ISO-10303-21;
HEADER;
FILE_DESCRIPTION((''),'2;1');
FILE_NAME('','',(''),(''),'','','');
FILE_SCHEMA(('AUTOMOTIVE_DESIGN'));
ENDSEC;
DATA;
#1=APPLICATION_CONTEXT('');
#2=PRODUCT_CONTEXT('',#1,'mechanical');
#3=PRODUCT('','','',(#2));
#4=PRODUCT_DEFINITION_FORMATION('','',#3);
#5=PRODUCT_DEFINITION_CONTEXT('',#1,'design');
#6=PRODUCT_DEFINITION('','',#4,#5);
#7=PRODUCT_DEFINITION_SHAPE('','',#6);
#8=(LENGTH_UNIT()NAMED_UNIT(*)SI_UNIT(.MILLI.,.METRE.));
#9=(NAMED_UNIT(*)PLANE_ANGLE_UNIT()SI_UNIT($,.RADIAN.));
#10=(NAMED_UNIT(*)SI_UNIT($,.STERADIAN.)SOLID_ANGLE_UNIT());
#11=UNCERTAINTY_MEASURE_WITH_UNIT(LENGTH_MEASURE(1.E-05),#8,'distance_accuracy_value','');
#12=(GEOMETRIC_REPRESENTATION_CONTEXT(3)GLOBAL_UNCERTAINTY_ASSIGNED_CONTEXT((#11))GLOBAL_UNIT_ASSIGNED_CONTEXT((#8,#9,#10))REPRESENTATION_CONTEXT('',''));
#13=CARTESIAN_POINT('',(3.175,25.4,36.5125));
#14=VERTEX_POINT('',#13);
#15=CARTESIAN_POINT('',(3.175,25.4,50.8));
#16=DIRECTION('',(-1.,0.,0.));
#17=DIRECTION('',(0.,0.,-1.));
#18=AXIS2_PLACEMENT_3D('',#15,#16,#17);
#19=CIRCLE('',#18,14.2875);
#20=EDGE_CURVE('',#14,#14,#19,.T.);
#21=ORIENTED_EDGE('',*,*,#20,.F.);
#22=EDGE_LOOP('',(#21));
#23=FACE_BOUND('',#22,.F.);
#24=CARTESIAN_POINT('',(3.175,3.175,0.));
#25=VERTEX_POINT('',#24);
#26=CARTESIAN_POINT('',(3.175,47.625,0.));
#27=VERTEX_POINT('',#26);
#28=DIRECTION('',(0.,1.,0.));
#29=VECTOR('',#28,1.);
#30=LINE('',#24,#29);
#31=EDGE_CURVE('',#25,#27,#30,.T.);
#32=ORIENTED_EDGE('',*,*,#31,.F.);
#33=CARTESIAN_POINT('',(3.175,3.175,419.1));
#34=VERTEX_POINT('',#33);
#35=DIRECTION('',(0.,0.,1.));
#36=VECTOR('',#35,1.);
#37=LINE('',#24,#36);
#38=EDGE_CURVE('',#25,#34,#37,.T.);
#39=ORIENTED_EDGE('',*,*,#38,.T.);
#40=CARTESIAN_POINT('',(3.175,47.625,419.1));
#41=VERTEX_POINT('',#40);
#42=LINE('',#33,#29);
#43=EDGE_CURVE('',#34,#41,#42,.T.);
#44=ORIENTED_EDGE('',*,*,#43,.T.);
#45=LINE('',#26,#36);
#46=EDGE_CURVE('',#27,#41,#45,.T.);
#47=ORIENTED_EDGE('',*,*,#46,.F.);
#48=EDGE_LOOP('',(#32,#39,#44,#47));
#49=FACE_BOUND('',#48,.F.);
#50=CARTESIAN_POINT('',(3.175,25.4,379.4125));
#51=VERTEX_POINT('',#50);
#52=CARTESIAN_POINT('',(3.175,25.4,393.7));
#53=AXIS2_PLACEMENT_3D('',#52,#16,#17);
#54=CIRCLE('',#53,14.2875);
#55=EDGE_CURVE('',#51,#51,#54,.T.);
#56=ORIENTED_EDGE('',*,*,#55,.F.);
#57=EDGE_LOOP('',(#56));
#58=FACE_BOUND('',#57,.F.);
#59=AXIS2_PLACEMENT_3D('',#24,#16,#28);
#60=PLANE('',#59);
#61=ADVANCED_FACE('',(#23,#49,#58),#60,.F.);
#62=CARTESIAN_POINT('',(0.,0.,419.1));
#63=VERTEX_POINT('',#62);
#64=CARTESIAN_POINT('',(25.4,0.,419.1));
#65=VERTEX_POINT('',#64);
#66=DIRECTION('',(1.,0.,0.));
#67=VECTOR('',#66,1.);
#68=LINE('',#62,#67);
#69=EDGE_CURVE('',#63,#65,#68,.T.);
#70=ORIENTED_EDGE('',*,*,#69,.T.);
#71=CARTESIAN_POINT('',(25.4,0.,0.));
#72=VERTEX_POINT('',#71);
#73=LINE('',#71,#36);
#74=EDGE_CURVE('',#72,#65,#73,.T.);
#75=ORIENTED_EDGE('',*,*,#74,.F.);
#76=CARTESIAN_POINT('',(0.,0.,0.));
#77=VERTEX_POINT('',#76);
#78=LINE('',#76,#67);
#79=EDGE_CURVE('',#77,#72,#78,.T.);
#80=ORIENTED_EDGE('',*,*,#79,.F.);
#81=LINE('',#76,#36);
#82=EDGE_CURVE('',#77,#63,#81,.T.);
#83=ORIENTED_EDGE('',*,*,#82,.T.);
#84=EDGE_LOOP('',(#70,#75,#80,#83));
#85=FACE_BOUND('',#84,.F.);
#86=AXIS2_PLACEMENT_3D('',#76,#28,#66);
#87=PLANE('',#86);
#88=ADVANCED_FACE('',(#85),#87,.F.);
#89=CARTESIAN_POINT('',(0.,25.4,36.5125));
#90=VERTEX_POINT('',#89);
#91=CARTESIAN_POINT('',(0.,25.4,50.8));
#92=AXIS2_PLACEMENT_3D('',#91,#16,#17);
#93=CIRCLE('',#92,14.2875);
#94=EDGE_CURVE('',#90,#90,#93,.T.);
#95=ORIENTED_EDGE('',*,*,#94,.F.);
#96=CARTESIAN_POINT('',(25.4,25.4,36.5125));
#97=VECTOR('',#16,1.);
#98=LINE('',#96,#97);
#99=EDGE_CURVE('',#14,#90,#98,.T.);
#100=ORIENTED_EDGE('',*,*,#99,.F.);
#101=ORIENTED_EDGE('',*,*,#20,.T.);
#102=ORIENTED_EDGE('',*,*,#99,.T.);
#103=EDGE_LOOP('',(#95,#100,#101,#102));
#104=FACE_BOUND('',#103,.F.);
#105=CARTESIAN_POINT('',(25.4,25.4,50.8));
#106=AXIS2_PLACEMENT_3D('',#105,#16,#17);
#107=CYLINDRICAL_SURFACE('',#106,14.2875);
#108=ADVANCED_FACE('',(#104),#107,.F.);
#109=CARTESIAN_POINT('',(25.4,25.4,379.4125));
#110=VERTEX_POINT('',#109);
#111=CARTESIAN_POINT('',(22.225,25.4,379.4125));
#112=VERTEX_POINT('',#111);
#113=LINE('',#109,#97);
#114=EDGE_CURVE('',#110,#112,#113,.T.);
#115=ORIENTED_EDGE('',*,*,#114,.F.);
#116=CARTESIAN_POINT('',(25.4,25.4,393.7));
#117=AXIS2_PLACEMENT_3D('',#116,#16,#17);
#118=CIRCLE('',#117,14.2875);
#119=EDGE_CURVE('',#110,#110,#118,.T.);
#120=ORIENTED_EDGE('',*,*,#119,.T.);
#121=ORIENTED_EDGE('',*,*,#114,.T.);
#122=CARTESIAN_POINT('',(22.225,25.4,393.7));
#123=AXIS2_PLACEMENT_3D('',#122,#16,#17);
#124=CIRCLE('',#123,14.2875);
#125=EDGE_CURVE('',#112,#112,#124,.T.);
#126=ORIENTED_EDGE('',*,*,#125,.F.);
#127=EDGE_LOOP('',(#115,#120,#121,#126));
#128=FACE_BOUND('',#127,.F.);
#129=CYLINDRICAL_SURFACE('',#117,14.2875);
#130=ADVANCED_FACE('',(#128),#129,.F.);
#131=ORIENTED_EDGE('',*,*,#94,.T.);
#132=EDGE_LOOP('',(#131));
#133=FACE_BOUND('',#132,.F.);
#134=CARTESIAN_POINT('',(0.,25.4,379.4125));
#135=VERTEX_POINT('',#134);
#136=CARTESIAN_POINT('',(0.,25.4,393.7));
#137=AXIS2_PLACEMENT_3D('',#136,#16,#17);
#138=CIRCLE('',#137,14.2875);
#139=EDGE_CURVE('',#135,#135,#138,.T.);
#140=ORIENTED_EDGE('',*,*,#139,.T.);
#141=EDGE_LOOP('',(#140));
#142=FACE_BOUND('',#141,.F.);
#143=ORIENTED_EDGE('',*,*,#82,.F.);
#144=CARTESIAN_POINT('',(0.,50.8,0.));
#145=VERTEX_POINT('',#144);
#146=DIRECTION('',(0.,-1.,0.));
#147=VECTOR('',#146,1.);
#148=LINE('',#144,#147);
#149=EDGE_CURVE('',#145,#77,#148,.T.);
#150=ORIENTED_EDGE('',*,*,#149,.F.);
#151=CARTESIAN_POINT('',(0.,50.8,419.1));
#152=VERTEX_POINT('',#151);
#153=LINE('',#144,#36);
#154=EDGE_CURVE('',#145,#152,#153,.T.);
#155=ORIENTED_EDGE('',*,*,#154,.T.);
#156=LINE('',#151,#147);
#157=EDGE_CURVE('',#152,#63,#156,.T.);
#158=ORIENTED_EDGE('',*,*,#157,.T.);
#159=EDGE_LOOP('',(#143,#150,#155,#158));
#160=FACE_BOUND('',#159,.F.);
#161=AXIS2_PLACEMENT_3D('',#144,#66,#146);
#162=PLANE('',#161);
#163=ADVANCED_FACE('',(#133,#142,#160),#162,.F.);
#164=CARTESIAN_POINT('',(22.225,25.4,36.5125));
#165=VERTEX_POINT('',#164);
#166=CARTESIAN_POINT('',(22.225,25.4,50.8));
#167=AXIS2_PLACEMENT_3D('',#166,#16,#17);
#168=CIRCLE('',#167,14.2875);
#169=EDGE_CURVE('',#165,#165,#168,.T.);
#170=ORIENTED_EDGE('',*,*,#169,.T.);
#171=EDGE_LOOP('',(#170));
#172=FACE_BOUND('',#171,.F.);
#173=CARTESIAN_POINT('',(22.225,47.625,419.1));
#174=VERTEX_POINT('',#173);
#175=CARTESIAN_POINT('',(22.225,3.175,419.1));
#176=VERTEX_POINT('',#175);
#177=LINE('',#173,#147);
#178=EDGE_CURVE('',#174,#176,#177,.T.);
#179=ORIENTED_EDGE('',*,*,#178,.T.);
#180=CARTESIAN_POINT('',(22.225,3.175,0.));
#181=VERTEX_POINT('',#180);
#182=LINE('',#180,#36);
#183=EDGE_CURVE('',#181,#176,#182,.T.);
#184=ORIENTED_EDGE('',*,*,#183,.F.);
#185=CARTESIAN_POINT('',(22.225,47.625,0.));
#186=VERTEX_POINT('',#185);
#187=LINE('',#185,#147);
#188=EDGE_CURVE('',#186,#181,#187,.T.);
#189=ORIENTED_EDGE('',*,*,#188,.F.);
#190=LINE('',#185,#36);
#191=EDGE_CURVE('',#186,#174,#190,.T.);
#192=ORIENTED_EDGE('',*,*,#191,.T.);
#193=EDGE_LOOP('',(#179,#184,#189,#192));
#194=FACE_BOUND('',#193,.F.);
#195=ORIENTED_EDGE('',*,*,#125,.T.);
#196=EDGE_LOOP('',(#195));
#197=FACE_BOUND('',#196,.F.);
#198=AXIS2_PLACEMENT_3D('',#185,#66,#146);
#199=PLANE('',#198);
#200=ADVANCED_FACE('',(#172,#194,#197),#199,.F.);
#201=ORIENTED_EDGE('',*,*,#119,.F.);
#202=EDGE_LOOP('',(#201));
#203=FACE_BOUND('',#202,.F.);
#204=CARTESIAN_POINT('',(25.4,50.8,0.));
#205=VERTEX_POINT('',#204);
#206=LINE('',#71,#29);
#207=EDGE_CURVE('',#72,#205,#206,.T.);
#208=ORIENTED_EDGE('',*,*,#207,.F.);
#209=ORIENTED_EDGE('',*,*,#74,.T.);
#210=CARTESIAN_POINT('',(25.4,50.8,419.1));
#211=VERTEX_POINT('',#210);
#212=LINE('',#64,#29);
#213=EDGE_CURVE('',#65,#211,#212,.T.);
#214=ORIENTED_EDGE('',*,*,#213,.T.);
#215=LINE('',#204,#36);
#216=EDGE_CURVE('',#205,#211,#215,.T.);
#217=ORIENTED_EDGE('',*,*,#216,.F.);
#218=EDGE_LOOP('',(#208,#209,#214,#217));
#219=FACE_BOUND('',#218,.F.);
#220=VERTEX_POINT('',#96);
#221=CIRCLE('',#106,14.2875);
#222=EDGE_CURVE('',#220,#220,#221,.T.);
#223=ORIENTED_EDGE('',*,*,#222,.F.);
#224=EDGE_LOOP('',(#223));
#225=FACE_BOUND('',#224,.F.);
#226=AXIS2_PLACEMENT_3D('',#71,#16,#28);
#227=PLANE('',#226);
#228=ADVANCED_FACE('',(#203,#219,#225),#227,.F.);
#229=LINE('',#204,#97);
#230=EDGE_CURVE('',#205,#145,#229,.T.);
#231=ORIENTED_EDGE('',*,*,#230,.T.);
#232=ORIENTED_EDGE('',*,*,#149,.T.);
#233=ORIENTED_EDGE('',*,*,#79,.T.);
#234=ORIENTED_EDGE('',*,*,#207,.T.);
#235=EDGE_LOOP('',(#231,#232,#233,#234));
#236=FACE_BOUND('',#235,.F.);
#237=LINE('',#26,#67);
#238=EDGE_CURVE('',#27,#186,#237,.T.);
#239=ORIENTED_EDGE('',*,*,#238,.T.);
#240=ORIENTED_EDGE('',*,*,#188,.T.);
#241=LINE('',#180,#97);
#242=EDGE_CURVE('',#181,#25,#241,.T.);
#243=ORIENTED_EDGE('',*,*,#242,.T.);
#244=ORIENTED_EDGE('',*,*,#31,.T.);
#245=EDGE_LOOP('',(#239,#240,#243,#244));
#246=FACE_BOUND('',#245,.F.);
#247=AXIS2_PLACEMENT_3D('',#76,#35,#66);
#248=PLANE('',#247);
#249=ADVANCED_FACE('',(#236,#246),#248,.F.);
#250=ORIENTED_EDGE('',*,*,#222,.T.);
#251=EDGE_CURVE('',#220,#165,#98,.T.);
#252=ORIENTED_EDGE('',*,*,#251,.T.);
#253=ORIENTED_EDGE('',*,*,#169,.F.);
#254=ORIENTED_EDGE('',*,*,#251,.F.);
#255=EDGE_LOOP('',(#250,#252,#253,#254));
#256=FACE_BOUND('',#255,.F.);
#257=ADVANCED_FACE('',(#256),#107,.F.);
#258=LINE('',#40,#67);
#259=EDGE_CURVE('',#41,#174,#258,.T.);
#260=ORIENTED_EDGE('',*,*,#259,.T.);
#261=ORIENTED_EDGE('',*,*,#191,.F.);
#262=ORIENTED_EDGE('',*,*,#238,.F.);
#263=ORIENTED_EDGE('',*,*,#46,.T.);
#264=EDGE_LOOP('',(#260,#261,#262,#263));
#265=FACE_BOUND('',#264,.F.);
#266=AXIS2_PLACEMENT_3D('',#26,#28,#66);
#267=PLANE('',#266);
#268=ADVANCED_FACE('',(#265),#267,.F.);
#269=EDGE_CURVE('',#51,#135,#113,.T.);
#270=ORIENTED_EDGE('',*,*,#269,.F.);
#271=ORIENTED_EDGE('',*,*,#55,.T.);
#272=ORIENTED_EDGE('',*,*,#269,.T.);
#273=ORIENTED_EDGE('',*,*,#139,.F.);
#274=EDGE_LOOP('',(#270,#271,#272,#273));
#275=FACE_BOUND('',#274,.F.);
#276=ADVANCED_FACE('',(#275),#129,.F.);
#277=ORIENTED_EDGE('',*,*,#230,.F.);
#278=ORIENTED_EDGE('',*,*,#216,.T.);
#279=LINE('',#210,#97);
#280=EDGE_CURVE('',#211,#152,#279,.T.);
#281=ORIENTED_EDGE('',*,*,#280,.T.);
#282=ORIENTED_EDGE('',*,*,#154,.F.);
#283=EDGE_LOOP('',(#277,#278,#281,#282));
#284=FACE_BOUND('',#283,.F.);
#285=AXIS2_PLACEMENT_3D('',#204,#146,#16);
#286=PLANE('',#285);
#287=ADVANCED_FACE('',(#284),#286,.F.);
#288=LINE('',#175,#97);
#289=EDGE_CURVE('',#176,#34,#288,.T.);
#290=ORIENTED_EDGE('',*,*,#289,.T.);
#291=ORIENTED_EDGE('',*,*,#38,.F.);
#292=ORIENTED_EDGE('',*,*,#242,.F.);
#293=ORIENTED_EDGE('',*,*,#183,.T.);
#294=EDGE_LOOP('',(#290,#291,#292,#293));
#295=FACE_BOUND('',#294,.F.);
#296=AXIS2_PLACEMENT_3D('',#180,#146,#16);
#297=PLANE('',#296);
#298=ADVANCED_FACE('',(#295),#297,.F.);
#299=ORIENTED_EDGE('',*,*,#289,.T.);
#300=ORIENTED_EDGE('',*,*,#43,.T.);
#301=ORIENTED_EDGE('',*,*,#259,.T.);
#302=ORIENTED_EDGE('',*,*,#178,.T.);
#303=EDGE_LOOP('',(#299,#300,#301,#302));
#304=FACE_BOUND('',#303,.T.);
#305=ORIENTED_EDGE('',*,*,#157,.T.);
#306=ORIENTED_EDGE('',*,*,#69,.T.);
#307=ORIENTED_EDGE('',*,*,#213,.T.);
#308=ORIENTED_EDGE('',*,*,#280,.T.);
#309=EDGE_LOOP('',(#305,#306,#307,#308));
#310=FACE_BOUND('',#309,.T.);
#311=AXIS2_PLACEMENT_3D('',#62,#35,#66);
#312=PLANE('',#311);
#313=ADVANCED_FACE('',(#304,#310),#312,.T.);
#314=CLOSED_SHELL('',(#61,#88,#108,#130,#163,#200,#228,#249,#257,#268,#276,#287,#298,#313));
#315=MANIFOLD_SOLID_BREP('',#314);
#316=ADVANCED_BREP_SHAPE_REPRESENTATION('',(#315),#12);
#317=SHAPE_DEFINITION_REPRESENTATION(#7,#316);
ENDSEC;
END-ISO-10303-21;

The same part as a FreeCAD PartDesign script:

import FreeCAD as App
import Part
import Sketcher
from FreeCAD import Vector
Q = App.Units.Quantity

doc = App.newDocument("Part")
params = doc.addObject("Spreadsheet::Sheet", "Params")
for row, (alias, value) in enumerate([
    ("sketch1_width", "1 in"),
    ("sketch1_height", "2 in"),
    ("pad1_length", "16.5 in"),
    ("sketch2_diameter", "1.125 in"),
    ("hole_diameter", "1.125 in"),
    ("hole_depth", "1 in"),
], start=1):
    params.set(f"A{row}", alias)
    params.set(f"B{row}", "=" + value)
    params.setAlias(f"B{row}", alias)

body = doc.addObject("PartDesign::Body", "Body")

# Sketch on XY plane
sketch1 = body.newObject("Sketcher::SketchObject", "Sketch")
sketch1.AttachmentSupport = (doc.getObject("XY_Plane"), [""])
sketch1.MapMode = "FlatFace"
sketch1.addGeometry([
    Part.LineSegment(Vector(0, 51, 0), Vector(0, 0, 0)),  # 0
    Part.LineSegment(Vector(0, 0, 0), Vector(25, 0, 0)),  # 1
    Part.LineSegment(Vector(25, 0, 0), Vector(25, 51, 0)),  # 2
    Part.LineSegment(Vector(25, 51, 0), Vector(0, 51, 0)),  # 3
    Part.LineSegment(Vector(3, 3, 0), Vector(3, 48, 0)),  # 4
    Part.LineSegment(Vector(3, 48, 0), Vector(22, 48, 0)),  # 5
    Part.LineSegment(Vector(22, 48, 0), Vector(22, 3, 0)),  # 6
    Part.LineSegment(Vector(22, 3, 0), Vector(3, 3, 0)),  # 7
], False)
sketch1.addConstraint([
    Sketcher.Constraint("Coincident", 0, 2, 1, 1),
    Sketcher.Constraint("Coincident", 1, 2, 2, 1),
    Sketcher.Constraint("Coincident", 2, 2, 3, 1),
    Sketcher.Constraint("Coincident", 3, 2, 0, 1),
    Sketcher.Constraint("Coincident", 4, 2, 5, 1),
    Sketcher.Constraint("Coincident", 5, 2, 6, 1),
    Sketcher.Constraint("Coincident", 6, 2, 7, 1),
    Sketcher.Constraint("Coincident", 7, 2, 4, 1),
    Sketcher.Constraint("Vertical", 0),
    Sketcher.Constraint("Horizontal", 1),
    Sketcher.Constraint("Vertical", 2),
    Sketcher.Constraint("Horizontal", 3),
    Sketcher.Constraint("Vertical", 4),
    Sketcher.Constraint("Horizontal", 5),
    Sketcher.Constraint("Vertical", 6),
    Sketcher.Constraint("Horizontal", 7),
    Sketcher.Constraint("Coincident", 0, 2, -1, 1),
    Sketcher.Constraint("DistanceX", 1, 1, 1, 2, Q("1 in")),
    Sketcher.Constraint("DistanceY", 0, 2, 0, 1, Q("2 in")),
    Sketcher.Constraint("DistanceX", -1, 1, 4, 2, Q("0.125 in")),
    Sketcher.Constraint("DistanceY", -1, 1, 6, 2, Q("0.125 in")),
    Sketcher.Constraint("DistanceY", 4, 2, 3, 2, Q("0.125 in")),
    Sketcher.Constraint("DistanceX", 5, 2, 2, 2, Q("0.125 in")),
])
sketch1.setExpression("Constraints[17]", "Params.sketch1_width")
sketch1.setExpression("Constraints[18]", "Params.sketch1_height")
pad1 = body.newObject("PartDesign::Pad", "Pad")
pad1.Profile = sketch1
pad1.setExpression("Length", "Params.pad1_length")

# Sketch on YZ plane
sketch2 = body.newObject("Sketcher::SketchObject", "Sketch001")
sketch2.AttachmentSupport = (doc.getObject("YZ_Plane"), [""])
sketch2.MapMode = "FlatFace"
sketch2.AttachmentOffset = App.Placement(Vector(0, 0, 1 * 25.4), App.Rotation())
sketch2.addGeometry([
    Part.Circle(Vector(25, 394, 0), Vector(0, 0, 1), 14),
    Part.Circle(Vector(25, 51, 0), Vector(0, 0, 1), 14),
], False)
sketch2.addConstraint([
    Sketcher.Constraint("Equal", 0, 1),
    Sketcher.Constraint("Vertical", 0, 3, 1, 3),
    Sketcher.Constraint("Diameter", 0, Q("1.125 in")),
    Sketcher.Constraint("DistanceX", -1, 1, 0, 3, Q("1 in")),
    Sketcher.Constraint("DistanceY", -1, 1, 1, 3, Q("2 in")),
    Sketcher.Constraint("DistanceY", -1, 1, 0, 3, Q("15.5 in")),
])
sketch2.setExpression("Constraints[2]", "Params.sketch2_diameter")
doc.recompute()
hole = body.newObject("PartDesign::Hole", "Hole")
hole.Profile = sketch2
hole.ThreadType = "None"
hole.setExpression("Diameter", "Params.hole_diameter")
hole.DepthType = "Dimension"
hole.setExpression("Depth", "Params.hole_depth")
hole.DrillPoint = "Angled"
hole.DrillPointAngle = 118

doc.recompute()
